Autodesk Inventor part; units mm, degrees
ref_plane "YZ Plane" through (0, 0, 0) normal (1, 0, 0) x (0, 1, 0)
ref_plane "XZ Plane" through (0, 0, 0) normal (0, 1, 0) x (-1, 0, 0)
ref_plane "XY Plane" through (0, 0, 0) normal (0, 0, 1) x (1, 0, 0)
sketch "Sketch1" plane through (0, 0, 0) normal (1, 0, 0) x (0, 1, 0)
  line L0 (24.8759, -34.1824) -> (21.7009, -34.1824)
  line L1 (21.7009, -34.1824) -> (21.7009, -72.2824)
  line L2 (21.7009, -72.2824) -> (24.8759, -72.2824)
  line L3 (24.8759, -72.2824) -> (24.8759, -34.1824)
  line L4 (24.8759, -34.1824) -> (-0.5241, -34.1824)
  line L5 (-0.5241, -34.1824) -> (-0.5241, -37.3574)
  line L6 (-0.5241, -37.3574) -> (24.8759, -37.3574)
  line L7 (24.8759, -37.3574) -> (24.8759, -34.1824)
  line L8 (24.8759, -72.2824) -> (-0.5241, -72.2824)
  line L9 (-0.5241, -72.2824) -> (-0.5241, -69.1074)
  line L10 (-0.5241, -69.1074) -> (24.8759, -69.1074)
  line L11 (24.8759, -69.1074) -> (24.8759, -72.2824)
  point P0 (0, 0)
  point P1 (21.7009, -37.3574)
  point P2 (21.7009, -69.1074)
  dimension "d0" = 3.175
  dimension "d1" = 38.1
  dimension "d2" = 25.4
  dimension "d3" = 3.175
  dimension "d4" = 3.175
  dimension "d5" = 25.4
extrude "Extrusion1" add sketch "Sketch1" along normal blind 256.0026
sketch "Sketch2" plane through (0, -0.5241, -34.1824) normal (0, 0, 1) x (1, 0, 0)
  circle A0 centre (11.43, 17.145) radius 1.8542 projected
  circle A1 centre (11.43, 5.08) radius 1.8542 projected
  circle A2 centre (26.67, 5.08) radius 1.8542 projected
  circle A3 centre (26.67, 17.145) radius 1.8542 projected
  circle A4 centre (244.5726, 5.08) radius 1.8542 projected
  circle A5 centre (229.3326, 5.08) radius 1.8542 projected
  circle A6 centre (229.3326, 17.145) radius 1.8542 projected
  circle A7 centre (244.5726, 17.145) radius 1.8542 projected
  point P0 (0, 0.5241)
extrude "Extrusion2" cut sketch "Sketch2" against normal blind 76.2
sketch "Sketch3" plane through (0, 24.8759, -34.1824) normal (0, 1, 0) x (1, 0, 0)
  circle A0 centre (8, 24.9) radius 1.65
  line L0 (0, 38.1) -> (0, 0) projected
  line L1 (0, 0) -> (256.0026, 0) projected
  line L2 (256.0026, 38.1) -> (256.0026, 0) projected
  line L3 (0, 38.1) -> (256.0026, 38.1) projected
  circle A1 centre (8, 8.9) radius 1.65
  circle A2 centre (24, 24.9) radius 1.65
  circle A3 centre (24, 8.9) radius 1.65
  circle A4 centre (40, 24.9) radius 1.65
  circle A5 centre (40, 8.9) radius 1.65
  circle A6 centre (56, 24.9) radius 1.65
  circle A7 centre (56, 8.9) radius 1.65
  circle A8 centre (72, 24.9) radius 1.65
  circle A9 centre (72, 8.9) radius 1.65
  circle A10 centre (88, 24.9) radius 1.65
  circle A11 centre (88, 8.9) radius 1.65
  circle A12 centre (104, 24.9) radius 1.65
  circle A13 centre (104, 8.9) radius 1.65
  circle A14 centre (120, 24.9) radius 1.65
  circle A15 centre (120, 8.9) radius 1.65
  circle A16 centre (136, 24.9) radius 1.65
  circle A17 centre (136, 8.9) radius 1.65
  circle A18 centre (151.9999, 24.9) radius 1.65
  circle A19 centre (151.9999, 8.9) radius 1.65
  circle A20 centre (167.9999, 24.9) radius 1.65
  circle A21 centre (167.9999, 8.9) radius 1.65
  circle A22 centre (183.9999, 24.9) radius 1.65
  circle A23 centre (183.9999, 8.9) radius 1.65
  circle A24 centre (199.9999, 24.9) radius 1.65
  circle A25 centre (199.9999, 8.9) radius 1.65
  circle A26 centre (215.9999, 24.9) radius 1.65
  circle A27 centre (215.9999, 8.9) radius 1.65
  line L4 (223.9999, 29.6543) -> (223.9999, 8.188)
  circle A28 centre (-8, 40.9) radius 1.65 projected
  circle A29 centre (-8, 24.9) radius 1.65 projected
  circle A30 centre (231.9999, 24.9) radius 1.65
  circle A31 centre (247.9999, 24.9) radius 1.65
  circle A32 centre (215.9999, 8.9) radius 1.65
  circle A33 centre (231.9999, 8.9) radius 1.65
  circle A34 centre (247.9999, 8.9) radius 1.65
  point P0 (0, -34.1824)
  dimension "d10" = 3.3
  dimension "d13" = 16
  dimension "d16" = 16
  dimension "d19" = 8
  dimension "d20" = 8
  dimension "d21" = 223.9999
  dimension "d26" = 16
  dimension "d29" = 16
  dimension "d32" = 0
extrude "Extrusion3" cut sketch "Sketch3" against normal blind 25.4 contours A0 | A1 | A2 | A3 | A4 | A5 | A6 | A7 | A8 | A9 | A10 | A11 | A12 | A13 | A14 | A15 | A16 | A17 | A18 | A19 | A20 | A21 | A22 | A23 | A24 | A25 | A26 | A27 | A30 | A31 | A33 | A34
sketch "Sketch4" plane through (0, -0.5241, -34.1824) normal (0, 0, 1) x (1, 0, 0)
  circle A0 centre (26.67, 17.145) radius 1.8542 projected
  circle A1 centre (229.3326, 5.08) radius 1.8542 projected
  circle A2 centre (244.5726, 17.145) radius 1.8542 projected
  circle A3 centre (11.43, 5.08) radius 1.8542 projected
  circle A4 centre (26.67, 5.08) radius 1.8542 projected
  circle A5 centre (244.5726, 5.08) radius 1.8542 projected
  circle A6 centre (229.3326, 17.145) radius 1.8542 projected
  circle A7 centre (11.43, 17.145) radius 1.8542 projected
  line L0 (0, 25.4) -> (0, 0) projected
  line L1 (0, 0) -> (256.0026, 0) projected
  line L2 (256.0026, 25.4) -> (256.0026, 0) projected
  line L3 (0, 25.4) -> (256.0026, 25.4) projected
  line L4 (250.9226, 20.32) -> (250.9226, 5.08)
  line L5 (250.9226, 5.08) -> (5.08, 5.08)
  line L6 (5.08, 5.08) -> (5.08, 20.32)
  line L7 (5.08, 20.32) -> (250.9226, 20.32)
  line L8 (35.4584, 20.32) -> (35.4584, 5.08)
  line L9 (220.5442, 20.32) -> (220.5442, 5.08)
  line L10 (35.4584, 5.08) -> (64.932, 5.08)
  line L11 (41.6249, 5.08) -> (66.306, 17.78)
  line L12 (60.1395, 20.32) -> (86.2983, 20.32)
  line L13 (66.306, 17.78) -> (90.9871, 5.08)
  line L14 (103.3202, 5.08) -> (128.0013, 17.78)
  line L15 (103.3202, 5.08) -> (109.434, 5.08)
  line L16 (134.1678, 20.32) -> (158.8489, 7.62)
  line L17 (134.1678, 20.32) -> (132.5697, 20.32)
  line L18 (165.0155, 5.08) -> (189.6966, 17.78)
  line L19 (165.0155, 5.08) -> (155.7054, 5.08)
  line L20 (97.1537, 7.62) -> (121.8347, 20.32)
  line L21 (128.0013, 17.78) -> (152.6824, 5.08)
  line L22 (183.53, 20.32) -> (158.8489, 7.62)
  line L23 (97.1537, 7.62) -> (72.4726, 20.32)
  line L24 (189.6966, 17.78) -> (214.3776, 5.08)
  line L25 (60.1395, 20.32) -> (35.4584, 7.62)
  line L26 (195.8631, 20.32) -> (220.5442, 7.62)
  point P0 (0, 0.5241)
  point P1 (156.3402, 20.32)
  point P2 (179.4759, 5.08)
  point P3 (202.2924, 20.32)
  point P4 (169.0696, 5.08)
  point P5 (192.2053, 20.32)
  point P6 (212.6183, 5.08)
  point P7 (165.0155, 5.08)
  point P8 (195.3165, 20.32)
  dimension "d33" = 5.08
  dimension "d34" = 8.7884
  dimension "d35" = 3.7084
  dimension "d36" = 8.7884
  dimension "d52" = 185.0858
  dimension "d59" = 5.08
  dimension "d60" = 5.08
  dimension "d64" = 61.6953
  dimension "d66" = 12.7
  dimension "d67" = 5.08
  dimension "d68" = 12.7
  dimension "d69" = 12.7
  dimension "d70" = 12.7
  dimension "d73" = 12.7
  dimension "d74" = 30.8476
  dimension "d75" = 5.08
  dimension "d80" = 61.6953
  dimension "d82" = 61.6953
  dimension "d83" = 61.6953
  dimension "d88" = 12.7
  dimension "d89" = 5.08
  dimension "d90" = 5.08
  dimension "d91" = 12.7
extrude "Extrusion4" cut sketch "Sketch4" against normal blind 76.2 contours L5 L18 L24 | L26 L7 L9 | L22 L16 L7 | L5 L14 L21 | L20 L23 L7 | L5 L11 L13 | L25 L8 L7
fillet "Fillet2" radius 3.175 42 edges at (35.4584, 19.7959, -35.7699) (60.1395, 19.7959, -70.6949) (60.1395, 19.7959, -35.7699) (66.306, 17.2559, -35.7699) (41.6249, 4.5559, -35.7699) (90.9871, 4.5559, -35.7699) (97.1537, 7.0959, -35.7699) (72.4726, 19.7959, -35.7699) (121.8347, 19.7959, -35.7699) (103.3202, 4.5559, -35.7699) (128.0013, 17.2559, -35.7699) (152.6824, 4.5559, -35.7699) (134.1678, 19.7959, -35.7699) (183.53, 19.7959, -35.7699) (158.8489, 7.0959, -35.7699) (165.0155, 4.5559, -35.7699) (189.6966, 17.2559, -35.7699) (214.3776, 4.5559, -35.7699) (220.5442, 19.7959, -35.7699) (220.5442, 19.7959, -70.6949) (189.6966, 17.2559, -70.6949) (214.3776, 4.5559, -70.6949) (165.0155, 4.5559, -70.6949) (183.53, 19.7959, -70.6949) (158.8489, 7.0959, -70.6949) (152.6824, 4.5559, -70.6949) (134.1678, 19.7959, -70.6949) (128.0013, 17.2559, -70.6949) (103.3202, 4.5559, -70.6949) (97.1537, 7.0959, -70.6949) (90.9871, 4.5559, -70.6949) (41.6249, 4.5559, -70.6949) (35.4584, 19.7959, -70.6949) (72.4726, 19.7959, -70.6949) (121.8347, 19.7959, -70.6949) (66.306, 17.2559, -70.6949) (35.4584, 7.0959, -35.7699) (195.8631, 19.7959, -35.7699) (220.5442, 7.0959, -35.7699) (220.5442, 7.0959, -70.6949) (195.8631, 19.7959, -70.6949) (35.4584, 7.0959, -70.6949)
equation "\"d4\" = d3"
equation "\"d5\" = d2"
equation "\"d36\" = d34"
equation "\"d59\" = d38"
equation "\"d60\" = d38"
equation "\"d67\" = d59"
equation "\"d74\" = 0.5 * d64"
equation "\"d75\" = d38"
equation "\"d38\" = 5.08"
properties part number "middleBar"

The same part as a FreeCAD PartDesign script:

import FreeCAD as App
import Part
import Sketcher
Q = App.Units.Quantity


def edges_at(feature, points):
    """Names of the edges that pass closest to the given points."""
    edges = feature.Shape.Edges
    near = lambda p: min(range(len(edges)), key=lambda i: edges[i].distToShape(Part.Vertex(*p))[0])
    return sorted({f"Edge{near(p) + 1}" for p in points})


def add_polygon(sketch, points):
    """Adds a closed chain of lines whose ends are joined by coincident constraints."""
    first, n = sketch.GeometryCount, len(points)
    for a, b in zip(points, points[1:] + points[:1]):
        sketch.addGeometry(Part.LineSegment(App.Vector(*a, 0), App.Vector(*b, 0)), False)
    for i in range(n):
        sketch.addConstraint(Sketcher.Constraint("Coincident", first + i, 2, first + (i + 1) % n, 1))

doc = App.newDocument("Part")
body = doc.addObject("PartDesign::Body", "Body")

# Sketch on YZ plane
sketch1 = body.newObject("Sketcher::SketchObject", "Sketch")
sketch1.AttachmentSupport = (doc.getObject("YZ_Plane"), [""])
sketch1.MapMode = "FlatFace"
add_polygon(sketch1, [(24.8759, -34.1824), (-0.5241, -34.1824), (-0.5241, -37.3574), (21.7009, -37.3574), (21.7009, -69.1074), (-0.5241, -69.1074), (-0.5241, -72.2824), (24.8759, -72.2824)])  # lines 0-7
sketch1.addConstraint([
    Sketcher.Constraint("Horizontal", 0),
    Sketcher.Constraint("Vertical", 1),
    Sketcher.Constraint("Horizontal", 2),
    Sketcher.Constraint("Vertical", 3),
    Sketcher.Constraint("Horizontal", 4),
    Sketcher.Constraint("Vertical", 5),
    Sketcher.Constraint("Horizontal", 6),
    Sketcher.Constraint("Vertical", 7),
    Sketcher.Constraint("Vertical", 1, 2, 4, 2),
    Sketcher.Constraint("Equal", 1, 5),
    Sketcher.Constraint("DistanceX", 0, 2, 0, 1, Q("1 in")),
    Sketcher.Constraint("DistanceY", 7, 1, 7, 2, Q("1.5 in")),
    Sketcher.Constraint("DistanceY", 1, 2, 1, 1, Q("0.125 in")),
    Sketcher.Constraint("DistanceX", 3, 2, 6, 2, Q("0.125 in")),
    Sketcher.Constraint("DistanceX", 0, 2, -1, 1, 0.524),
    Sketcher.Constraint("DistanceY", 0, 2, -1, 1, 34.1824),
])
pad1 = body.newObject("PartDesign::Pad", "Pad")
pad1.Profile = sketch1
pad1.Length = 256.0026

# Sketch on XY plane
sketch2 = body.newObject("Sketcher::SketchObject", "Sketch001")
sketch2.AttachmentSupport = (doc.getObject("XY_Plane"), [""])
sketch2.MapMode = "FlatFace"
sketch2.AttachmentOffset = App.Placement(App.Vector(0, 0, -34.1824), App.Rotation())
sketch2.addGeometry([
    Part.Circle(App.Vector(11.43, 16.6209, 0), App.Vector(0, 0, 1), 1.8542),  # 0
    Part.Circle(App.Vector(11.43, 4.5559, 0), App.Vector(0, 0, 1), 1.8542),  # 1
    Part.Circle(App.Vector(26.67, 4.5559, 0), App.Vector(0, 0, 1), 1.8542),  # 2
    Part.Circle(App.Vector(26.67, 16.6209, 0), App.Vector(0, 0, 1), 1.8542),  # 3
    Part.Circle(App.Vector(244.5726, 4.5559, 0), App.Vector(0, 0, 1), 1.8542),  # 4
    Part.Circle(App.Vector(229.3326, 4.5559, 0), App.Vector(0, 0, 1), 1.8542),  # 5
    Part.Circle(App.Vector(229.3326, 16.6209, 0), App.Vector(0, 0, 1), 1.8542),  # 6
    Part.Circle(App.Vector(244.5726, 16.6209, 0), App.Vector(0, 0, 1), 1.8542),  # 7
], False)
sketch2.addConstraint([
    Sketcher.Constraint("Equal", 0, 1),
    Sketcher.Constraint("Equal", 1, 2),
    Sketcher.Constraint("Equal", 2, 3),
    Sketcher.Constraint("Equal", 3, 4),
    Sketcher.Constraint("Equal", 4, 5),
    Sketcher.Constraint("Equal", 5, 6),
    Sketcher.Constraint("Equal", 6, 7),
    Sketcher.Constraint("Horizontal", 1, 3, 2, 3),
    Sketcher.Constraint("Horizontal", 0, 3, 3, 3),
    Sketcher.Constraint("Horizontal", 2, 3, 4, 3),
    Sketcher.Constraint("Horizontal", 4, 3, 5, 3),
    Sketcher.Constraint("Horizontal", 3, 3, 6, 3),
    Sketcher.Constraint("Horizontal", 6, 3, 7, 3),
    Sketcher.Constraint("Vertical", 0, 3, 1, 3),
    Sketcher.Constraint("Vertical", 2, 3, 3, 3),
    Sketcher.Constraint("Vertical", 5, 3, 6, 3),
    Sketcher.Constraint("Vertical", 4, 3, 7, 3),
    Sketcher.Constraint("Diameter", 0, Q("0.146 in")),
    Sketcher.Constraint("DistanceX", 1, 3, 2, 3, Q("0.6 in")),
    Sketcher.Constraint("DistanceX", 5, 3, 4, 3, Q("0.6 in")),
    Sketcher.Constraint("DistanceX", -1, 1, 0, 3, Q("0.45 in")),
    Sketcher.Constraint("DistanceY", 1, 3, 0, 3, Q("0.475 in")),
    Sketcher.Constraint("DistanceY", -1, 1, 0, 3, 16.621),
    Sketcher.Constraint("DistanceX", -1, 1, 4, 3, 244.5726),
])
pocket1 = body.newObject("PartDesign::Pocket", "Pocket")
pocket1.Profile = sketch2
pocket1.Length = Q("3 in")

# Sketch on XZ plane
sketch3 = body.newObject("Sketcher::SketchObject", "Sketch002")
sketch3.AttachmentSupport = (doc.getObject("XZ_Plane"), [""])
sketch3.MapMode = "FlatFace"
sketch3.AttachmentOffset = App.Placement(App.Vector(0, 0, -24.8759), App.Rotation())
sketch3.addGeometry([
    Part.Circle(App.Vector(8, -59.0824, 0), App.Vector(0, 0, 1), 1.65),  # 0
    Part.Circle(App.Vector(8, -43.0824, 0), App.Vector(0, 0, 1), 1.65),  # 1
    Part.Circle(App.Vector(24, -59.0824, 0), App.Vector(0, 0, 1), 1.65),  # 2
    Part.Circle(App.Vector(24, -43.0824, 0), App.Vector(0, 0, 1), 1.65),  # 3
    Part.Circle(App.Vector(40, -59.0824, 0), App.Vector(0, 0, 1), 1.65),  # 4
    Part.Circle(App.Vector(40, -43.0824, 0), App.Vector(0, 0, 1), 1.65),  # 5
    Part.Circle(App.Vector(56, -59.0824, 0), App.Vector(0, 0, 1), 1.65),  # 6
    Part.Circle(App.Vector(56, -43.0824, 0), App.Vector(0, 0, 1), 1.65),  # 7
    Part.Circle(App.Vector(72, -59.0824, 0), App.Vector(0, 0, 1), 1.65),  # 8
    Part.Circle(App.Vector(72, -43.0824, 0), App.Vector(0, 0, 1), 1.65),  # 9
    Part.Circle(App.Vector(88, -59.0824, 0), App.Vector(0, 0, 1), 1.65),  # 10
    Part.Circle(App.Vector(88, -43.0824, 0), App.Vector(0, 0, 1), 1.65),  # 11
    Part.Circle(App.Vector(104, -59.0824, 0), App.Vector(0, 0, 1), 1.65),  # 12
    Part.Circle(App.Vector(104, -43.0824, 0), App.Vector(0, 0, 1), 1.65),  # 13
    Part.Circle(App.Vector(120, -59.0824, 0), App.Vector(0, 0, 1), 1.65),  # 14
    Part.Circle(App.Vector(120, -43.0824, 0), App.Vector(0, 0, 1), 1.65),  # 15
    Part.Circle(App.Vector(136, -59.0824, 0), App.Vector(0, 0, 1), 1.65),  # 16
    Part.Circle(App.Vector(136, -43.0824, 0), App.Vector(0, 0, 1), 1.65),  # 17
    Part.Circle(App.Vector(151.9999, -59.0824, 0), App.Vector(0, 0, 1), 1.65),  # 18
    Part.Circle(App.Vector(151.9999, -43.0824, 0), App.Vector(0, 0, 1), 1.65),  # 19
    Part.Circle(App.Vector(167.9999, -59.0824, 0), App.Vector(0, 0, 1), 1.65),  # 20
    Part.Circle(App.Vector(167.9999, -43.0824, 0), App.Vector(0, 0, 1), 1.65),  # 21
    Part.Circle(App.Vector(183.9999, -59.0824, 0), App.Vector(0, 0, 1), 1.65),  # 22
    Part.Circle(App.Vector(183.9999, -43.0824, 0), App.Vector(0, 0, 1), 1.65),  # 23
    Part.Circle(App.Vector(199.9999, -59.0824, 0), App.Vector(0, 0, 1), 1.65),  # 24
    Part.Circle(App.Vector(199.9999, -43.0824, 0), App.Vector(0, 0, 1), 1.65),  # 25
    Part.Circle(App.Vector(215.9999, -59.0824, 0), App.Vector(0, 0, 1), 1.65),  # 26
    Part.Circle(App.Vector(215.9999, -43.0824, 0), App.Vector(0, 0, 1), 1.65),  # 27
    Part.Circle(App.Vector(231.9999, -59.0824, 0), App.Vector(0, 0, 1), 1.65),  # 28
    Part.Circle(App.Vector(247.9999, -59.0824, 0), App.Vector(0, 0, 1), 1.65),  # 29
    Part.Circle(App.Vector(231.9999, -43.0824, 0), App.Vector(0, 0, 1), 1.65),  # 30
    Part.Circle(App.Vector(247.9999, -43.0824, 0), App.Vector(0, 0, 1), 1.65),  # 31
], False)
sketch3.addConstraint([
    Sketcher.Constraint("Equal", 0, 1),
    Sketcher.Constraint("Equal", 1, 2),
    Sketcher.Constraint("Equal", 2, 3),
    Sketcher.Constraint("Equal", 3, 4),
    Sketcher.Constraint("Equal", 4, 5),
    Sketcher.Constraint("Equal", 5, 6),
    Sketcher.Constraint("Equal", 6, 7),
    Sketcher.Constraint("Equal", 7, 8),
    Sketcher.Constraint("Equal", 8, 9),
    Sketcher.Constraint("Equal", 9, 10),
    Sketcher.Constraint("Equal", 10, 11),
    Sketcher.Constraint("Equal", 11, 12),
    Sketcher.Constraint("Equal", 12, 13),
    Sketcher.Constraint("Equal", 13, 14),
    Sketcher.Constraint("Equal", 14, 15),
    Sketcher.Constraint("Equal", 15, 16),
    Sketcher.Constraint("Equal", 16, 17),
    Sketcher.Constraint("Equal", 17, 18),
    Sketcher.Constraint("Equal", 18, 19),
    Sketcher.Constraint("Equal", 19, 20),
    Sketcher.Constraint("Equal", 20, 21),
    Sketcher.Constraint("Equal", 21, 22),
    Sketcher.Constraint("Equal", 22, 23),
    Sketcher.Constraint("Equal", 23, 24),
    Sketcher.Constraint("Equal", 24, 25),
    Sketcher.Constraint("Equal", 25, 26),
    Sketcher.Constraint("Equal", 26, 27),
    Sketcher.Constraint("Equal", 27, 28),
    Sketcher.Constraint("Equal", 28, 29),
    Sketcher.Constraint("Equal", 29, 30),
    Sketcher.Constraint("Equal", 30, 31),
    Sketcher.Constraint("Horizontal", 0, 3, 2, 3),
    Sketcher.Constraint("Horizontal", 1, 3, 3, 3),
    Sketcher.Constraint("Horizontal", 2, 3, 4, 3),
    Sketcher.Constraint("Horizontal", 3, 3, 5, 3),
    Sketcher.Constraint("Horizontal", 4, 3, 6, 3),
    Sketcher.Constraint("Horizontal", 5, 3, 7, 3),
    Sketcher.Constraint("Horizontal", 6, 3, 8, 3),
    Sketcher.Constraint("Horizontal", 7, 3, 9, 3),
    Sketcher.Constraint("Horizontal", 8, 3, 10, 3),
    Sketcher.Constraint("Horizontal", 9, 3, 11, 3),
    Sketcher.Constraint("Horizontal", 10, 3, 12, 3),
    Sketcher.Constraint("Horizontal", 11, 3, 13, 3),
    Sketcher.Constraint("Horizontal", 12, 3, 14, 3),
    Sketcher.Constraint("Horizontal", 13, 3, 15, 3),
    Sketcher.Constraint("Horizontal", 14, 3, 16, 3),
    Sketcher.Constraint("Horizontal", 15, 3, 17, 3),
    Sketcher.Constraint("Horizontal", 16, 3, 18, 3),
    Sketcher.Constraint("Horizontal", 17, 3, 19, 3),
    Sketcher.Constraint("Horizontal", 18, 3, 20, 3),
    Sketcher.Constraint("Horizontal", 19, 3, 21, 3),
    Sketcher.Constraint("Horizontal", 20, 3, 22, 3),
    Sketcher.Constraint("Horizontal", 21, 3, 23, 3),
    Sketcher.Constraint("Horizontal", 22, 3, 24, 3),
    Sketcher.Constraint("Horizontal", 23, 3, 25, 3),
    Sketcher.Constraint("Horizontal", 24, 3, 26, 3),
    Sketcher.Constraint("Horizontal", 25, 3, 27, 3),
    Sketcher.Constraint("Horizontal", 26, 3, 28, 3),
    Sketcher.Constraint("Horizontal", 28, 3, 29, 3),
    Sketcher.Constraint("Horizontal", 27, 3, 30, 3),
    Sketcher.Constraint("Horizontal", 30, 3, 31, 3),
    Sketcher.Constraint("Vertical", 0, 3, 1, 3),
    Sketcher.Constraint("Vertical", 2, 3, 3, 3),
    Sketcher.Constraint("Vertical", 4, 3, 5, 3),
    Sketcher.Constraint("Vertical", 6, 3, 7, 3),
    Sketcher.Constraint("Vertical", 8, 3, 9, 3),
    Sketcher.Constraint("Vertical", 10, 3, 11, 3),
    Sketcher.Constraint("Vertical", 12, 3, 13, 3),
    Sketcher.Constraint("Vertical", 14, 3, 15, 3),
    Sketcher.Constraint("Vertical", 16, 3, 17, 3),
    Sketcher.Constraint("Vertical", 18, 3, 19, 3),
    Sketcher.Constraint("Vertical", 20, 3, 21, 3),
    Sketcher.Constraint("Vertical", 22, 3, 23, 3),
    Sketcher.Constraint("Vertical", 24, 3, 25, 3),
    Sketcher.Constraint("Vertical", 26, 3, 27, 3),
    Sketcher.Constraint("Vertical", 28, 3, 30, 3),
    Sketcher.Constraint("Vertical", 29, 3, 31, 3),
    Sketcher.Constraint("Diameter", 0, 3.3),
    Sketcher.Constraint("DistanceX", -1, 1, 0, 3, 8.0),
    Sketcher.Constraint("DistanceY", 0, 3, 1, 3, 16.0),
    Sketcher.Constraint("DistanceX", 0, 3, 2, 3, 16.0),
    Sketcher.Constraint("DistanceX", 2, 3, 4, 3, 16.0),
    Sketcher.Constraint("DistanceX", 4, 3, 6, 3, 16.0),
    Sketcher.Constraint("DistanceX", 6, 3, 8, 3, 16.0),
    Sketcher.Constraint("DistanceX", 8, 3, 10, 3, 16.0),
    Sketcher.Constraint("DistanceX", 10, 3, 12, 3, 16.0),
    Sketcher.Constraint("DistanceX", 12, 3, 14, 3, 16.0),
    Sketcher.Constraint("DistanceX", 14, 3, 16, 3, 16.0),
    Sketcher.Constraint("DistanceX", 16, 3, 18, 3, 16.0),
    Sketcher.Constraint("DistanceX", 18, 3, 20, 3, 16.0),
    Sketcher.Constraint("DistanceX", 20, 3, 22, 3, 16.0),
    Sketcher.Constraint("DistanceX", 22, 3, 24, 3, 16.0),
    Sketcher.Constraint("DistanceX", 24, 3, 26, 3, 16.0),
    Sketcher.Constraint("DistanceX", 26, 3, 28, 3, 16.0),
    Sketcher.Constraint("DistanceX", 28, 3, 29, 3, 16.0),
    Sketcher.Constraint("DistanceY", 0, 3, -1, 1, 59.0824),
])
pocket2 = body.newObject("PartDesign::Pocket", "Pocket001")
pocket2.Profile = sketch3
pocket2.Length = Q("1 in")
pocket2.Reversed = True

# Sketch on XY plane
sketch4 = body.newObject("Sketcher::SketchObject", "Sketch003")
sketch4.AttachmentSupport = (doc.getObject("XY_Plane"), [""])
sketch4.MapMode = "FlatFace"
sketch4.AttachmentOffset = App.Placement(App.Vector(0, 0, -34.1824), App.Rotation())
add_polygon(sketch4, [(165.0155, 4.5559), (214.3776, 4.5559), (189.6966, 17.2559)])  # lines 0-2
add_polygon(sketch4, [(195.8631, 19.7959), (220.5442, 7.0959), (220.5442, 19.7959)])  # lines 3-5
add_polygon(sketch4, [(158.8489, 7.0959), (183.53, 19.7959), (134.1678, 19.7959)])  # lines 6-8
add_polygon(sketch4, [(103.3202, 4.5559), (152.6824, 4.5559), (128.0013, 17.2559)])  # lines 9-11
add_polygon(sketch4, [(97.1537, 7.0959), (121.8347, 19.7959), (72.4726, 19.7959)])  # lines 12-14
add_polygon(sketch4, [(41.6249, 4.5559), (90.9871, 4.5559), (66.306, 17.2559)])  # lines 15-17
add_polygon(sketch4, [(35.4584, 7.0959), (60.1395, 19.7959), (35.4584, 19.7959)])  # lines 18-20
sketch4.addConstraint([
    Sketcher.Constraint("Horizontal", 0),
    Sketcher.Constraint("Vertical", 4),
    Sketcher.Constraint("Horizontal", 5),
    Sketcher.Constraint("Horizontal", 7),
    Sketcher.Constraint("Horizontal", 9),
    Sketcher.Constraint("Horizontal", 13),
    Sketcher.Constraint("Horizontal", 15),
    Sketcher.Constraint("Horizontal", 19),
    Sketcher.Constraint("Vertical", 20),
    Sketcher.Constraint("Parallel", 1, 3),
    Sketcher.Constraint("Parallel", 2, 6),
    Sketcher.Constraint("Parallel", 3, 8),
    Sketcher.Constraint("Parallel", 8, 10),
    Sketcher.Constraint("Parallel", 6, 11),
    Sketcher.Constraint("Parallel", 11, 12),
    Sketcher.Constraint("Parallel", 10, 14),
    Sketcher.Constraint("Parallel", 14, 16),
    Sketcher.Constraint("Parallel", 12, 17),
    Sketcher.Constraint("Parallel", 17, 18),
    Sketcher.Constraint("Horizontal", 5, 2, 6, 2),
    Sketcher.Constraint("Horizontal", 3, 2, 8, 2),
    Sketcher.Constraint("Horizontal", 2, 2, 9, 2),
    Sketcher.Constraint("Horizontal", 1, 2, 10, 2),
    Sketcher.Constraint("Horizontal", 7, 2, 12, 2),
    Sketcher.Constraint("Horizontal", 8, 2, 14, 2),
    Sketcher.Constraint("Horizontal", 11, 2, 15, 2),
    Sketcher.Constraint("Horizontal", 10, 2, 16, 2),
    Sketcher.Constraint("Horizontal", 13, 2, 18, 2),
    Sketcher.Constraint("Horizontal", 14, 2, 20, 2),
    Sketcher.Constraint("Equal", 0, 7),
    Sketcher.Constraint("Equal", 5, 19),
    Sketcher.Constraint("DistanceY", 4, 1, 4, 2, Q("0.5 in")),
    Sketcher.Constraint("DistanceY", 0, 2, 3, 2, Q("0.1 in")),
    Sketcher.Constraint("Angle", 1, Q("152.7712 deg")),
    Sketcher.Constraint("DistanceX", 1, 2, 3, 2, 30.8476),
    Sketcher.Constraint("DistanceX", 6, 2, 0, 2, 30.8476),
    Sketcher.Constraint("DistanceX", 9, 2, 6, 2, 30.8476),
    Sketcher.Constraint("DistanceX", 12, 2, 9, 2, 30.8477),
    Sketcher.Constraint("DistanceX", 15, 2, 12, 2, 30.8476),
    Sketcher.Constraint("DistanceX", 18, 2, 15, 2, 30.8476),
    Sketcher.Constraint("DistanceX", -1, 1, 19, 2, Q("1.396 in")),
    Sketcher.Constraint("DistanceY", -1, 1, 0, 2, 4.556),
])
pocket3 = body.newObject("PartDesign::Pocket", "Pocket002")
pocket3.Profile = sketch4
pocket3.Length = Q("3 in")
doc.recompute()

fillet = body.newObject("PartDesign::Fillet", "Fillet")
fillet.Base = (pocket3, edges_at(pocket3, [
    (35.458, 19.796, -35.77),
    (60.139, 19.796, -70.695),
    (60.139, 19.796, -35.77),
    (66.306, 17.256, -35.77),
    (41.625, 4.556, -35.77),
    (90.987, 4.556, -35.77),
    (97.154, 7.096, -35.77),
    (72.473, 19.796, -35.77),
    (121.835, 19.796, -35.77),
    (103.32, 4.556, -35.77),
    (128.001, 17.256, -35.77),
    (152.682, 4.556, -35.77),
    (134.168, 19.796, -35.77),
    (183.53, 19.796, -35.77),
    (158.849, 7.096, -35.77),
    (165.016, 4.556, -35.77),
    (189.697, 17.256, -35.77),
    (214.378, 4.556, -35.77),
    (220.544, 19.796, -35.77),
    (220.544, 19.796, -70.695),
    (189.697, 17.256, -70.695),
    (214.378, 4.556, -70.695),
    (165.016, 4.556, -70.695),
    (183.53, 19.796, -70.695),
    (158.849, 7.096, -70.695),
    (152.682, 4.556, -70.695),
    (134.168, 19.796, -70.695),
    (128.001, 17.256, -70.695),
    (103.32, 4.556, -70.695),
    (97.154, 7.096, -70.695),
    (90.987, 4.556, -70.695),
    (41.625, 4.556, -70.695),
    (35.458, 19.796, -70.695),
    (72.473, 19.796, -70.695),
    (121.835, 19.796, -70.695),
    (66.306, 17.256, -70.695),
    (35.458, 7.096, -35.77),
    (195.863, 19.796, -35.77),
    (220.544, 7.096, -35.77),
    (220.544, 7.096, -70.695),
    (195.863, 19.796, -70.695),
    (35.458, 7.096, -70.695),
]))
fillet.Radius = Q("0.125 in")

doc.recompute()
